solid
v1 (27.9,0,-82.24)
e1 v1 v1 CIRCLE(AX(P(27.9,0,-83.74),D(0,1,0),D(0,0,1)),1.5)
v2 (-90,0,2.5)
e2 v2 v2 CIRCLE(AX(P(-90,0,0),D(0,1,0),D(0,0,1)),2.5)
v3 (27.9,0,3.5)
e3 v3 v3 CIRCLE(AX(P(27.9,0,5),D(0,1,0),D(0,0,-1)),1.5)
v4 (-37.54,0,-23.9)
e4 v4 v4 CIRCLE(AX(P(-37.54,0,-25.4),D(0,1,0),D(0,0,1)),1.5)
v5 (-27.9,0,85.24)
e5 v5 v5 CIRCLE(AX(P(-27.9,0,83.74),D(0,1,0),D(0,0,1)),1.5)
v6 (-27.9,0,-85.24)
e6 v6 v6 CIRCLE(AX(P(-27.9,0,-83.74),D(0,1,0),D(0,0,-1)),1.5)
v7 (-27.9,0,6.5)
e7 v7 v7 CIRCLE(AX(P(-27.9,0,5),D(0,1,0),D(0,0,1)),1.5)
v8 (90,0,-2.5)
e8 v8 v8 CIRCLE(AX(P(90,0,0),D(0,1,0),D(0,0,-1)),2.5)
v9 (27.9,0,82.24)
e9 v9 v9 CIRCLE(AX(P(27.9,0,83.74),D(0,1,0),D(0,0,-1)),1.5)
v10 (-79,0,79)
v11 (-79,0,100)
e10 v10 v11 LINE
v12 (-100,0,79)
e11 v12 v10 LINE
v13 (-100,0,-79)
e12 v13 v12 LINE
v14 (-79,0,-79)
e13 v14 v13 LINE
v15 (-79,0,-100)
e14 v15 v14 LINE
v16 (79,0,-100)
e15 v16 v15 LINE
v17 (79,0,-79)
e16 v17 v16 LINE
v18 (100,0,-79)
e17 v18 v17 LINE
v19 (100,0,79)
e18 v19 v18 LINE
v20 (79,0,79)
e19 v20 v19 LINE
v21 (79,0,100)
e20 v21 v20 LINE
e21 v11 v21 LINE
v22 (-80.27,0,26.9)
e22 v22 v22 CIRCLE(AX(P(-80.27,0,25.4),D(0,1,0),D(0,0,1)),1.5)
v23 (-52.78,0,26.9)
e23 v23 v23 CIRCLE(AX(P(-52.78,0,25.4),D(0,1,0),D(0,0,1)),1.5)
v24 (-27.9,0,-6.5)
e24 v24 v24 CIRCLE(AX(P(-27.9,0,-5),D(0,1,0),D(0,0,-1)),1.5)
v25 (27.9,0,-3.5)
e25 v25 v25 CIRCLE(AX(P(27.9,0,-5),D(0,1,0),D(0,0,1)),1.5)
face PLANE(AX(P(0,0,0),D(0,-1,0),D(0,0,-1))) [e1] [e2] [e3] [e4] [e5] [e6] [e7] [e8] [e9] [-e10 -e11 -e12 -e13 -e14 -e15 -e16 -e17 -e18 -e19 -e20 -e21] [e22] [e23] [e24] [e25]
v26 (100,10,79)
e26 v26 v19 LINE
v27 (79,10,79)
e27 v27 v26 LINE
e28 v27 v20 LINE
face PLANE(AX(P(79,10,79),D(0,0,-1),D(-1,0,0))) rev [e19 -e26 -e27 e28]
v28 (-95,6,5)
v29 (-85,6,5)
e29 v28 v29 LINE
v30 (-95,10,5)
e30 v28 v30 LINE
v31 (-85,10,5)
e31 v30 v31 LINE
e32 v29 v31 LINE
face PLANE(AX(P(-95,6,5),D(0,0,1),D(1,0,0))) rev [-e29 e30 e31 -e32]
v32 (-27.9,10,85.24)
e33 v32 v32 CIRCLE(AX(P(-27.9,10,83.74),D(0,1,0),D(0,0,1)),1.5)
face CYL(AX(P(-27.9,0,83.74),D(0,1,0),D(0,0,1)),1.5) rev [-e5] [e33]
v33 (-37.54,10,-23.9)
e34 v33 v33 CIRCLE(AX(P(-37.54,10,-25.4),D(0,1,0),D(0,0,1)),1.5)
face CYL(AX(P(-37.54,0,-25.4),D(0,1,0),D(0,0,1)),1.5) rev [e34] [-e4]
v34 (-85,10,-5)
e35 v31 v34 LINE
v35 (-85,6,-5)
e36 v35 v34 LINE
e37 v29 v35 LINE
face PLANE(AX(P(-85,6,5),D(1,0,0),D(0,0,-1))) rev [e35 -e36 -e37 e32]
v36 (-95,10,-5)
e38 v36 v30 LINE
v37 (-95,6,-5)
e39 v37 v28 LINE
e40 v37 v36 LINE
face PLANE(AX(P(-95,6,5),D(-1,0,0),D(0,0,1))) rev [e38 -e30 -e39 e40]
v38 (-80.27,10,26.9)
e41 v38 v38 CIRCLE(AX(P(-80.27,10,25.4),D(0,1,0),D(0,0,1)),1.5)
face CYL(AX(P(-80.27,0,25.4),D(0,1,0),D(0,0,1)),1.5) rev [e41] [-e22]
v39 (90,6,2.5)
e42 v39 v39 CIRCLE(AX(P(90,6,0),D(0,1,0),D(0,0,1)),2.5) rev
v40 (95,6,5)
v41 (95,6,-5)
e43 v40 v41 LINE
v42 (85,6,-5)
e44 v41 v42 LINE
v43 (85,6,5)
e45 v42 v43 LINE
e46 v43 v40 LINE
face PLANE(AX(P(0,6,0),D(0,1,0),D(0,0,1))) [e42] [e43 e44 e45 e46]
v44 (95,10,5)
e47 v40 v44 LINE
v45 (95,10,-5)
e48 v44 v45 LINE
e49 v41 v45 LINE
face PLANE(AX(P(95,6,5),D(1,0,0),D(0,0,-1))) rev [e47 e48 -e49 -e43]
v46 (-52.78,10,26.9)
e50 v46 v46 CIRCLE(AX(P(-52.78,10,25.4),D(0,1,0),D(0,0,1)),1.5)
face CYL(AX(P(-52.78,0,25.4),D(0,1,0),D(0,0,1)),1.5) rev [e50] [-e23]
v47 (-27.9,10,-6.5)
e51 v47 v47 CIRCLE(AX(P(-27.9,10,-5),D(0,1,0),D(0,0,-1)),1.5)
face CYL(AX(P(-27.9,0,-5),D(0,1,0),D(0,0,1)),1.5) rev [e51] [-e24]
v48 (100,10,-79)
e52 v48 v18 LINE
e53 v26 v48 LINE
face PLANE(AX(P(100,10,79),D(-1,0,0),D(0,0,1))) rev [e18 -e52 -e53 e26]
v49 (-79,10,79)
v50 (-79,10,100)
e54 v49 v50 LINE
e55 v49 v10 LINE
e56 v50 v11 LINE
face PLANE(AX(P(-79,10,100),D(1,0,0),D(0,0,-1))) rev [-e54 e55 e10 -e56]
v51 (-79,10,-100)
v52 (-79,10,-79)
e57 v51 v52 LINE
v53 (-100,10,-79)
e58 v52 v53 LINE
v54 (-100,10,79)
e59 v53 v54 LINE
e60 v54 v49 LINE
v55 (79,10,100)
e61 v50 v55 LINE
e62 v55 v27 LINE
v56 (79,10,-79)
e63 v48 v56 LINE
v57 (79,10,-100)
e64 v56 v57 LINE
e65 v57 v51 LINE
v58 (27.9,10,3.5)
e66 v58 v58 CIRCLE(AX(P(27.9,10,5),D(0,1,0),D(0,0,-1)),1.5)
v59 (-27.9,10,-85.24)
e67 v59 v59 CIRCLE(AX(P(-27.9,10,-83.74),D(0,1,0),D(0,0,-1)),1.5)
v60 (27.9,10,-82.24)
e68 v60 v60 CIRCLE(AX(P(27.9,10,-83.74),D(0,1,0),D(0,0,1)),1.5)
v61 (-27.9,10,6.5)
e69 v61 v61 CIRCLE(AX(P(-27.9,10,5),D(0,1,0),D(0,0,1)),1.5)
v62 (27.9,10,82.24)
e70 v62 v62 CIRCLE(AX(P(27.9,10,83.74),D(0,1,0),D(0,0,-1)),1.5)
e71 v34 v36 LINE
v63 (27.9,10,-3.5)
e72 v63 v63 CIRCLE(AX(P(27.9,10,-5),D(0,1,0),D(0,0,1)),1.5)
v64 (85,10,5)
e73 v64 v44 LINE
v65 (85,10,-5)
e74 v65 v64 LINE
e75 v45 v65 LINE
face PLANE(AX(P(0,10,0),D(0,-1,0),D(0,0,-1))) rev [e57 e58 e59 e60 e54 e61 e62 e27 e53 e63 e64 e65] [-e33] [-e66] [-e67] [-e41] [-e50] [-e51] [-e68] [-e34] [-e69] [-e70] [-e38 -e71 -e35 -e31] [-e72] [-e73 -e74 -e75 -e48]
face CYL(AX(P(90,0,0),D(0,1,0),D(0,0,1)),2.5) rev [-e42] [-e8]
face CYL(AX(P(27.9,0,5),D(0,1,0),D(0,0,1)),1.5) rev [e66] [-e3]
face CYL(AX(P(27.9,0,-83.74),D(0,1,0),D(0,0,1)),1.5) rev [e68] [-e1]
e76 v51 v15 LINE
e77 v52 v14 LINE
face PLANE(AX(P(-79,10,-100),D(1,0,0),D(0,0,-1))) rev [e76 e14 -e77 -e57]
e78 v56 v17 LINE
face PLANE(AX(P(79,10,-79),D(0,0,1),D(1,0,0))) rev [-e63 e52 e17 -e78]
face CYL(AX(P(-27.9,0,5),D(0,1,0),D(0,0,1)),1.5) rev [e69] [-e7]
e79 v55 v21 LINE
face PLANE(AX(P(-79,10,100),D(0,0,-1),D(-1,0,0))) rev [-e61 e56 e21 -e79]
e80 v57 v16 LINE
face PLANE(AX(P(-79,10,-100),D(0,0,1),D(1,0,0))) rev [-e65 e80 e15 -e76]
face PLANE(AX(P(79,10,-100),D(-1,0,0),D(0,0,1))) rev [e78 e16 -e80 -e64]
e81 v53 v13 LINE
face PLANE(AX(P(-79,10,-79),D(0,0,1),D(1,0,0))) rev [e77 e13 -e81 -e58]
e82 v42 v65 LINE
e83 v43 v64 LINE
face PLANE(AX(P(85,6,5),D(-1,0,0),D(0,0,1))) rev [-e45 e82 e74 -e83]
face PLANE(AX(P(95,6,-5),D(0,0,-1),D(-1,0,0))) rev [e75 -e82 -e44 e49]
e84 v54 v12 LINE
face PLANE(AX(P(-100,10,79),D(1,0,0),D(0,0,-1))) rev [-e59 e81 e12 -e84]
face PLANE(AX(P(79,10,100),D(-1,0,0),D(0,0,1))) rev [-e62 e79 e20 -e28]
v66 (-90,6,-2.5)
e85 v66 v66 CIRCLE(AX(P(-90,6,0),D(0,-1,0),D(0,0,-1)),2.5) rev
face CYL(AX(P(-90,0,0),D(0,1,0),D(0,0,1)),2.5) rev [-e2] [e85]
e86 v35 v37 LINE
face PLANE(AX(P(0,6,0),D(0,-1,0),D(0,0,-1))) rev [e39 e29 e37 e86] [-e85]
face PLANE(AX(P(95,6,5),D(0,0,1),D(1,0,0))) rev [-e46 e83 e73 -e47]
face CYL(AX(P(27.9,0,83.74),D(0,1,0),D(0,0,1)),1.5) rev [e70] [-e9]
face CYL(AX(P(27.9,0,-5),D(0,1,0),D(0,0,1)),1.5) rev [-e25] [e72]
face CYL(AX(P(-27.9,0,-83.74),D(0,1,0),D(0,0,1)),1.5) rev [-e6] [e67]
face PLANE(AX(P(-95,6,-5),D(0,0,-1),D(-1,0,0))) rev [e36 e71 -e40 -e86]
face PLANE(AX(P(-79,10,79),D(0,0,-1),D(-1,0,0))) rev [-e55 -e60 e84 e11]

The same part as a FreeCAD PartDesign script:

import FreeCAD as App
import Part
import Sketcher

V = App.Vector


def add_polygon(sketch, points):
    """Adds a closed chain of lines whose ends are joined by coincident constraints."""
    first, n = sketch.GeometryCount, len(points)
    for a, b in zip(points, points[1:] + points[:1]):
        sketch.addGeometry(Part.LineSegment(App.Vector(*a, 0), App.Vector(*b, 0)), False)
    for i in range(n):
        sketch.addConstraint(Sketcher.Constraint("Coincident", first + i, 2, first + (i + 1) % n, 1))

doc = App.newDocument("Part")
body = doc.addObject("PartDesign::Body", "Body")

# Sketch on XZ plane
sketch1 = body.newObject("Sketcher::SketchObject", "Sketch")
sketch1.AttachmentSupport = (doc.getObject("XZ_Plane"), [""])
sketch1.MapMode = "FlatFace"
add_polygon(sketch1, [(-79, -100), (-79, -79), (-100, -79), (-100, 79), (-79, 79), (-79, 100), (79, 100), (79, 79), (100, 79), (100, -79), (79, -79), (79, -100)])  # lines 0-11
sketch1.addConstraint([
    Sketcher.Constraint("Vertical", 0),
    Sketcher.Constraint("Horizontal", 1),
    Sketcher.Constraint("Vertical", 2),
    Sketcher.Constraint("Horizontal", 3),
    Sketcher.Constraint("Vertical", 4),
    Sketcher.Constraint("Horizontal", 5),
    Sketcher.Constraint("Vertical", 6),
    Sketcher.Constraint("Horizontal", 7),
    Sketcher.Constraint("Vertical", 8),
    Sketcher.Constraint("Horizontal", 9),
    Sketcher.Constraint("Vertical", 10),
    Sketcher.Constraint("Horizontal", 11),
    Sketcher.Constraint("Symmetric", 0, 2, 6, 2, -1, 1),
    Sketcher.Constraint("Symmetric", 2, 2, 8, 2, -1, 1),
    Sketcher.Constraint("Symmetric", 4, 2, 10, 2, -1, 1),
    Sketcher.Constraint("Symmetric", 3, 2, 6, 2, -2),
    Sketcher.Constraint("Equal", 9, 0),
    Sketcher.Constraint("Equal", 11, 2),
    Sketcher.Constraint("DistanceX", 1, 2, 1, 1, 21.0),
    Sketcher.Constraint("DistanceX", 5, 1, 5, 2, 158.0),
])
pad1 = body.newObject("PartDesign::Pad", "Pad")
pad1.Profile = sketch1
pad1.Length = 10
pad1.Reversed = True

# Sketch on XZ plane
sketch2 = body.newObject("Sketcher::SketchObject", "Sketch001")
sketch2.AttachmentSupport = (doc.getObject("XZ_Plane"), [""])
sketch2.MapMode = "FlatFace"
sketch2.AttachmentOffset = App.Placement(V(0, 0, -10), App.Rotation())
sketch2.addGeometry([
    Part.Circle(V(-90, 0, 0), V(0, 0, 1), 2.5),
    Part.Circle(V(90, 0, 0), V(0, 0, 1), 2.5),
], False)
sketch2.addConstraint([
    Sketcher.Constraint("Equal", 0, 1),
    Sketcher.Constraint("Symmetric", 0, 3, 1, 3, -1, 1),
    Sketcher.Constraint("PointOnObject", 0, 3, -1),
    Sketcher.Constraint("Diameter", 0, 5.0),
    Sketcher.Constraint("DistanceX", 0, 3, -1, 1, 90.0),
])
pocket1 = body.newObject("PartDesign::Pocket", "Pocket")
pocket1.Profile = sketch2
pocket1.Length = 10
pocket1.Reversed = True

# Sketch on XZ plane
sketch3 = body.newObject("Sketcher::SketchObject", "Sketch002")
sketch3.AttachmentSupport = (doc.getObject("XZ_Plane"), [""])
sketch3.MapMode = "FlatFace"
sketch3.AttachmentOffset = App.Placement(V(0, 0, -10), App.Rotation())
sketch3.addGeometry([
    Part.Circle(V(27.9, -83.7, 0), V(0, 0, 1), 1.5),  # 0
    Part.Circle(V(27.9, -5, 0), V(0, 0, 1), 1.5),  # 1
    Part.Circle(V(-27.9, -5, 0), V(0, 0, 1), 1.5),  # 2
    Part.Circle(V(-27.9, -83.7, 0), V(0, 0, 1), 1.5),  # 3
    Part.Circle(V(-27.9, 5, 0), V(0, 0, 1), 1.5),  # 4
    Part.Circle(V(27.9, 5, 0), V(0, 0, 1), 1.5),  # 5
    Part.Circle(V(27.9, 83.7, 0), V(0, 0, 1), 1.5),  # 6
    Part.Circle(V(-27.9, 83.7, 0), V(0, 0, 1), 1.5),  # 7
], False)
sketch3.addConstraint([
    Sketcher.Constraint("Equal", 0, 1),
    Sketcher.Constraint("Equal", 1, 2),
    Sketcher.Constraint("Equal", 2, 3),
    Sketcher.Constraint("Equal", 3, 4),
    Sketcher.Constraint("Equal", 4, 5),
    Sketcher.Constraint("Equal", 5, 6),
    Sketcher.Constraint("Equal", 6, 7),
    Sketcher.Constraint("Symmetric", 1, 3, 4, 3, -1, 1),
    Sketcher.Constraint("Symmetric", 2, 3, 5, 3, -1, 1),
    Sketcher.Constraint("Symmetric", 3, 3, 6, 3, -1, 1),
    Sketcher.Constraint("Symmetric", 0, 3, 7, 3, -1, 1),
    Sketcher.Constraint("Symmetric", 1, 3, 2, 3, -2),
    Sketcher.Constraint("Symmetric", 0, 3, 3, 3, -2),
    Sketcher.Constraint("Vertical", 0, 3, 1, 3),
    Sketcher.Constraint("Diameter", 0, 3.0),
    Sketcher.Constraint("DistanceY", 1, 3, -1, 1, 5.0),
    Sketcher.Constraint("DistanceX", -1, 1, 0, 3, 27.9),
    Sketcher.Constraint("DistanceY", 0, 3, -1, 1, 83.74),
])
pocket2 = body.newObject("PartDesign::Pocket", "Pocket001")
pocket2.Profile = sketch3
pocket2.Length = 10
pocket2.Reversed = True

# Sketch on XZ plane
sketch4 = body.newObject("Sketcher::SketchObject", "Sketch003")
sketch4.AttachmentSupport = (doc.getObject("XZ_Plane"), [""])
sketch4.MapMode = "FlatFace"
sketch4.AttachmentOffset = App.Placement(V(0, 0, -10), App.Rotation())
sketch4.addGeometry([
    Part.Circle(V(-37.5, -25.4, 0), V(0, 0, 1), 1.5),
    Part.Circle(V(-52.8, 25.4, 0), V(0, 0, 1), 1.5),
    Part.Circle(V(-80.3, 25.4, 0), V(0, 0, 1), 1.5),
], False)
sketch4.addConstraint([
    Sketcher.Constraint("Equal", 0, 1),
    Sketcher.Constraint("Equal", 1, 2),
    Sketcher.Constraint("Horizontal", 1, 3, 2, 3),
    Sketcher.Constraint("Diameter", 0, 3.0),
    Sketcher.Constraint("DistanceY", 0, 3, -1, 1, 25.4),
    Sketcher.Constraint("DistanceY", -1, 1, 1, 3, 25.4),
    Sketcher.Constraint("DistanceX", 0, 3, -1, 1, 37.54),
    Sketcher.Constraint("DistanceX", 1, 3, -1, 1, 52.78),
    Sketcher.Constraint("DistanceX", 2, 3, -1, 1, 80.27),
])
pocket3 = body.newObject("PartDesign::Pocket", "Pocket002")
pocket3.Profile = sketch4
pocket3.Length = 10
pocket3.Reversed = True

# Sketch on XZ plane
sketch5 = body.newObject("Sketcher::SketchObject", "Sketch004")
sketch5.AttachmentSupport = (doc.getObject("XZ_Plane"), [""])
sketch5.MapMode = "FlatFace"
sketch5.AttachmentOffset = App.Placement(V(0, 0, -10), App.Rotation())
add_polygon(sketch5, [(-95, -5), (-95, 5), (-85, 5), (-85, -5)])  # lines 0-3
add_polygon(sketch5, [(85, -5), (85, 5), (95, 5), (95, -5)])  # lines 4-7
sketch5.addConstraint([
    Sketcher.Constraint("Vertical", 0),
    Sketcher.Constraint("Horizontal", 1),
    Sketcher.Constraint("Vertical", 2),
    Sketcher.Constraint("Horizontal", 3),
    Sketcher.Constraint("Vertical", 4),
    Sketcher.Constraint("Horizontal", 5),
    Sketcher.Constraint("Vertical", 6),
    Sketcher.Constraint("Horizontal", 7),
    Sketcher.Constraint("Symmetric", 2, 2, 4, 2, -1, 1),
    Sketcher.Constraint("Symmetric", 0, 2, 6, 2, -1, 1),
    Sketcher.Constraint("Horizontal", 1, 2, 4, 2),
    Sketcher.Constraint("Equal", 7, 0),
    Sketcher.Constraint("DistanceX", 1, 1, 1, 2, 10.0),
    Sketcher.Constraint("DistanceX", 0, 2, -1, 1, 95.0),
])
pocket4 = body.newObject("PartDesign::Pocket", "Pocket003")
pocket4.Profile = sketch5
pocket4.Length = 4
pocket4.Reversed = True

doc.recompute()
